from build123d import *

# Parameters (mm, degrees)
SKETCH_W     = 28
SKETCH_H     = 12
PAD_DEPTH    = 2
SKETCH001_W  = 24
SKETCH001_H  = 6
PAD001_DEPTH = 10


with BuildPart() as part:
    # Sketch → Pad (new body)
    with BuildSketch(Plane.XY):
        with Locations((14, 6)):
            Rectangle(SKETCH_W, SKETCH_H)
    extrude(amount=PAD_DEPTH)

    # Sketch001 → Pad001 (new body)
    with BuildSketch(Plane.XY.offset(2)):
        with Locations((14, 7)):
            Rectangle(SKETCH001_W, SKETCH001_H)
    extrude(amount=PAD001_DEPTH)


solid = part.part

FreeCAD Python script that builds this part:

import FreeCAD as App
import Part
import Sketcher
from FreeCAD import Vector

doc = App.newDocument("Part")
body = doc.addObject("PartDesign::Body", "Body")

sketch1 = body.newObject("Sketcher::SketchObject", "Sketch")
sketch1.AttachmentSupport = (doc.getObject("XY_Plane"), [""])
sketch1.MapMode = "FlatFace"
sketch1.addGeometry([
    Part.LineSegment(Vector(0, 12, 0), Vector(0, 0, 0)),
    Part.LineSegment(Vector(0, 0, 0), Vector(28, 0, 0)),
    Part.LineSegment(Vector(28, 0, 0), Vector(28, 12, 0)),
    Part.LineSegment(Vector(28, 12, 0), Vector(0, 12, 0)),
], False)
sketch1.addConstraint([
    Sketcher.Constraint("Coincident", 0, 2, 1, 1),
    Sketcher.Constraint("Coincident", 1, 2, 2, 1),
    Sketcher.Constraint("Coincident", 2, 2, 3, 1),
    Sketcher.Constraint("Coincident", 3, 2, 0, 1),
    Sketcher.Constraint("Vertical", 0),
    Sketcher.Constraint("Horizontal", 1),
    Sketcher.Constraint("Vertical", 2),
    Sketcher.Constraint("Horizontal", 3),
    Sketcher.Constraint("Coincident", 0, 2, -1, 1),
    Sketcher.Constraint("DistanceX", 1, 1, 1, 2, 28.0),
    Sketcher.Constraint("DistanceY", 0, 2, 0, 1, 12.0),
])
pad1 = body.newObject("PartDesign::Pad", "Pad")
pad1.Profile = sketch1
pad1.Length = 2

sketch2 = body.newObject("Sketcher::SketchObject", "Sketch001")
sketch2.AttachmentSupport = (doc.getObject("XY_Plane"), [""])
sketch2.MapMode = "FlatFace"
sketch2.AttachmentOffset = App.Placement(Vector(0, 0, 2), App.Rotation())
sketch2.addGeometry([
    Part.LineSegment(Vector(2, 10, 0), Vector(2, 4, 0)),
    Part.LineSegment(Vector(2, 4, 0), Vector(26, 4, 0)),
    Part.LineSegment(Vector(26, 4, 0), Vector(26, 10, 0)),
    Part.LineSegment(Vector(26, 10, 0), Vector(2, 10, 0)),
], False)
sketch2.addConstraint([
    Sketcher.Constraint("Coincident", 0, 2, 1, 1),
    Sketcher.Constraint("Coincident", 1, 2, 2, 1),
    Sketcher.Constraint("Coincident", 2, 2, 3, 1),
    Sketcher.Constraint("Coincident", 3, 2, 0, 1),
    Sketcher.Constraint("Vertical", 0),
    Sketcher.Constraint("Horizontal", 1),
    Sketcher.Constraint("Vertical", 2),
    Sketcher.Constraint("Horizontal", 3),
    Sketcher.Constraint("DistanceX", 1, 1, 1, 2, 24.0),
    Sketcher.Constraint("DistanceY", 0, 2, 0, 1, 6.0),
    Sketcher.Constraint("DistanceX", -1, 1, 0, 2, 2.0),
    Sketcher.Constraint("DistanceY", -1, 1, 0, 2, 4.0),
])
pad2 = body.newObject("PartDesign::Pad", "Pad001")
pad2.Profile = sketch2
pad2.Length = 10

doc.recompute()
